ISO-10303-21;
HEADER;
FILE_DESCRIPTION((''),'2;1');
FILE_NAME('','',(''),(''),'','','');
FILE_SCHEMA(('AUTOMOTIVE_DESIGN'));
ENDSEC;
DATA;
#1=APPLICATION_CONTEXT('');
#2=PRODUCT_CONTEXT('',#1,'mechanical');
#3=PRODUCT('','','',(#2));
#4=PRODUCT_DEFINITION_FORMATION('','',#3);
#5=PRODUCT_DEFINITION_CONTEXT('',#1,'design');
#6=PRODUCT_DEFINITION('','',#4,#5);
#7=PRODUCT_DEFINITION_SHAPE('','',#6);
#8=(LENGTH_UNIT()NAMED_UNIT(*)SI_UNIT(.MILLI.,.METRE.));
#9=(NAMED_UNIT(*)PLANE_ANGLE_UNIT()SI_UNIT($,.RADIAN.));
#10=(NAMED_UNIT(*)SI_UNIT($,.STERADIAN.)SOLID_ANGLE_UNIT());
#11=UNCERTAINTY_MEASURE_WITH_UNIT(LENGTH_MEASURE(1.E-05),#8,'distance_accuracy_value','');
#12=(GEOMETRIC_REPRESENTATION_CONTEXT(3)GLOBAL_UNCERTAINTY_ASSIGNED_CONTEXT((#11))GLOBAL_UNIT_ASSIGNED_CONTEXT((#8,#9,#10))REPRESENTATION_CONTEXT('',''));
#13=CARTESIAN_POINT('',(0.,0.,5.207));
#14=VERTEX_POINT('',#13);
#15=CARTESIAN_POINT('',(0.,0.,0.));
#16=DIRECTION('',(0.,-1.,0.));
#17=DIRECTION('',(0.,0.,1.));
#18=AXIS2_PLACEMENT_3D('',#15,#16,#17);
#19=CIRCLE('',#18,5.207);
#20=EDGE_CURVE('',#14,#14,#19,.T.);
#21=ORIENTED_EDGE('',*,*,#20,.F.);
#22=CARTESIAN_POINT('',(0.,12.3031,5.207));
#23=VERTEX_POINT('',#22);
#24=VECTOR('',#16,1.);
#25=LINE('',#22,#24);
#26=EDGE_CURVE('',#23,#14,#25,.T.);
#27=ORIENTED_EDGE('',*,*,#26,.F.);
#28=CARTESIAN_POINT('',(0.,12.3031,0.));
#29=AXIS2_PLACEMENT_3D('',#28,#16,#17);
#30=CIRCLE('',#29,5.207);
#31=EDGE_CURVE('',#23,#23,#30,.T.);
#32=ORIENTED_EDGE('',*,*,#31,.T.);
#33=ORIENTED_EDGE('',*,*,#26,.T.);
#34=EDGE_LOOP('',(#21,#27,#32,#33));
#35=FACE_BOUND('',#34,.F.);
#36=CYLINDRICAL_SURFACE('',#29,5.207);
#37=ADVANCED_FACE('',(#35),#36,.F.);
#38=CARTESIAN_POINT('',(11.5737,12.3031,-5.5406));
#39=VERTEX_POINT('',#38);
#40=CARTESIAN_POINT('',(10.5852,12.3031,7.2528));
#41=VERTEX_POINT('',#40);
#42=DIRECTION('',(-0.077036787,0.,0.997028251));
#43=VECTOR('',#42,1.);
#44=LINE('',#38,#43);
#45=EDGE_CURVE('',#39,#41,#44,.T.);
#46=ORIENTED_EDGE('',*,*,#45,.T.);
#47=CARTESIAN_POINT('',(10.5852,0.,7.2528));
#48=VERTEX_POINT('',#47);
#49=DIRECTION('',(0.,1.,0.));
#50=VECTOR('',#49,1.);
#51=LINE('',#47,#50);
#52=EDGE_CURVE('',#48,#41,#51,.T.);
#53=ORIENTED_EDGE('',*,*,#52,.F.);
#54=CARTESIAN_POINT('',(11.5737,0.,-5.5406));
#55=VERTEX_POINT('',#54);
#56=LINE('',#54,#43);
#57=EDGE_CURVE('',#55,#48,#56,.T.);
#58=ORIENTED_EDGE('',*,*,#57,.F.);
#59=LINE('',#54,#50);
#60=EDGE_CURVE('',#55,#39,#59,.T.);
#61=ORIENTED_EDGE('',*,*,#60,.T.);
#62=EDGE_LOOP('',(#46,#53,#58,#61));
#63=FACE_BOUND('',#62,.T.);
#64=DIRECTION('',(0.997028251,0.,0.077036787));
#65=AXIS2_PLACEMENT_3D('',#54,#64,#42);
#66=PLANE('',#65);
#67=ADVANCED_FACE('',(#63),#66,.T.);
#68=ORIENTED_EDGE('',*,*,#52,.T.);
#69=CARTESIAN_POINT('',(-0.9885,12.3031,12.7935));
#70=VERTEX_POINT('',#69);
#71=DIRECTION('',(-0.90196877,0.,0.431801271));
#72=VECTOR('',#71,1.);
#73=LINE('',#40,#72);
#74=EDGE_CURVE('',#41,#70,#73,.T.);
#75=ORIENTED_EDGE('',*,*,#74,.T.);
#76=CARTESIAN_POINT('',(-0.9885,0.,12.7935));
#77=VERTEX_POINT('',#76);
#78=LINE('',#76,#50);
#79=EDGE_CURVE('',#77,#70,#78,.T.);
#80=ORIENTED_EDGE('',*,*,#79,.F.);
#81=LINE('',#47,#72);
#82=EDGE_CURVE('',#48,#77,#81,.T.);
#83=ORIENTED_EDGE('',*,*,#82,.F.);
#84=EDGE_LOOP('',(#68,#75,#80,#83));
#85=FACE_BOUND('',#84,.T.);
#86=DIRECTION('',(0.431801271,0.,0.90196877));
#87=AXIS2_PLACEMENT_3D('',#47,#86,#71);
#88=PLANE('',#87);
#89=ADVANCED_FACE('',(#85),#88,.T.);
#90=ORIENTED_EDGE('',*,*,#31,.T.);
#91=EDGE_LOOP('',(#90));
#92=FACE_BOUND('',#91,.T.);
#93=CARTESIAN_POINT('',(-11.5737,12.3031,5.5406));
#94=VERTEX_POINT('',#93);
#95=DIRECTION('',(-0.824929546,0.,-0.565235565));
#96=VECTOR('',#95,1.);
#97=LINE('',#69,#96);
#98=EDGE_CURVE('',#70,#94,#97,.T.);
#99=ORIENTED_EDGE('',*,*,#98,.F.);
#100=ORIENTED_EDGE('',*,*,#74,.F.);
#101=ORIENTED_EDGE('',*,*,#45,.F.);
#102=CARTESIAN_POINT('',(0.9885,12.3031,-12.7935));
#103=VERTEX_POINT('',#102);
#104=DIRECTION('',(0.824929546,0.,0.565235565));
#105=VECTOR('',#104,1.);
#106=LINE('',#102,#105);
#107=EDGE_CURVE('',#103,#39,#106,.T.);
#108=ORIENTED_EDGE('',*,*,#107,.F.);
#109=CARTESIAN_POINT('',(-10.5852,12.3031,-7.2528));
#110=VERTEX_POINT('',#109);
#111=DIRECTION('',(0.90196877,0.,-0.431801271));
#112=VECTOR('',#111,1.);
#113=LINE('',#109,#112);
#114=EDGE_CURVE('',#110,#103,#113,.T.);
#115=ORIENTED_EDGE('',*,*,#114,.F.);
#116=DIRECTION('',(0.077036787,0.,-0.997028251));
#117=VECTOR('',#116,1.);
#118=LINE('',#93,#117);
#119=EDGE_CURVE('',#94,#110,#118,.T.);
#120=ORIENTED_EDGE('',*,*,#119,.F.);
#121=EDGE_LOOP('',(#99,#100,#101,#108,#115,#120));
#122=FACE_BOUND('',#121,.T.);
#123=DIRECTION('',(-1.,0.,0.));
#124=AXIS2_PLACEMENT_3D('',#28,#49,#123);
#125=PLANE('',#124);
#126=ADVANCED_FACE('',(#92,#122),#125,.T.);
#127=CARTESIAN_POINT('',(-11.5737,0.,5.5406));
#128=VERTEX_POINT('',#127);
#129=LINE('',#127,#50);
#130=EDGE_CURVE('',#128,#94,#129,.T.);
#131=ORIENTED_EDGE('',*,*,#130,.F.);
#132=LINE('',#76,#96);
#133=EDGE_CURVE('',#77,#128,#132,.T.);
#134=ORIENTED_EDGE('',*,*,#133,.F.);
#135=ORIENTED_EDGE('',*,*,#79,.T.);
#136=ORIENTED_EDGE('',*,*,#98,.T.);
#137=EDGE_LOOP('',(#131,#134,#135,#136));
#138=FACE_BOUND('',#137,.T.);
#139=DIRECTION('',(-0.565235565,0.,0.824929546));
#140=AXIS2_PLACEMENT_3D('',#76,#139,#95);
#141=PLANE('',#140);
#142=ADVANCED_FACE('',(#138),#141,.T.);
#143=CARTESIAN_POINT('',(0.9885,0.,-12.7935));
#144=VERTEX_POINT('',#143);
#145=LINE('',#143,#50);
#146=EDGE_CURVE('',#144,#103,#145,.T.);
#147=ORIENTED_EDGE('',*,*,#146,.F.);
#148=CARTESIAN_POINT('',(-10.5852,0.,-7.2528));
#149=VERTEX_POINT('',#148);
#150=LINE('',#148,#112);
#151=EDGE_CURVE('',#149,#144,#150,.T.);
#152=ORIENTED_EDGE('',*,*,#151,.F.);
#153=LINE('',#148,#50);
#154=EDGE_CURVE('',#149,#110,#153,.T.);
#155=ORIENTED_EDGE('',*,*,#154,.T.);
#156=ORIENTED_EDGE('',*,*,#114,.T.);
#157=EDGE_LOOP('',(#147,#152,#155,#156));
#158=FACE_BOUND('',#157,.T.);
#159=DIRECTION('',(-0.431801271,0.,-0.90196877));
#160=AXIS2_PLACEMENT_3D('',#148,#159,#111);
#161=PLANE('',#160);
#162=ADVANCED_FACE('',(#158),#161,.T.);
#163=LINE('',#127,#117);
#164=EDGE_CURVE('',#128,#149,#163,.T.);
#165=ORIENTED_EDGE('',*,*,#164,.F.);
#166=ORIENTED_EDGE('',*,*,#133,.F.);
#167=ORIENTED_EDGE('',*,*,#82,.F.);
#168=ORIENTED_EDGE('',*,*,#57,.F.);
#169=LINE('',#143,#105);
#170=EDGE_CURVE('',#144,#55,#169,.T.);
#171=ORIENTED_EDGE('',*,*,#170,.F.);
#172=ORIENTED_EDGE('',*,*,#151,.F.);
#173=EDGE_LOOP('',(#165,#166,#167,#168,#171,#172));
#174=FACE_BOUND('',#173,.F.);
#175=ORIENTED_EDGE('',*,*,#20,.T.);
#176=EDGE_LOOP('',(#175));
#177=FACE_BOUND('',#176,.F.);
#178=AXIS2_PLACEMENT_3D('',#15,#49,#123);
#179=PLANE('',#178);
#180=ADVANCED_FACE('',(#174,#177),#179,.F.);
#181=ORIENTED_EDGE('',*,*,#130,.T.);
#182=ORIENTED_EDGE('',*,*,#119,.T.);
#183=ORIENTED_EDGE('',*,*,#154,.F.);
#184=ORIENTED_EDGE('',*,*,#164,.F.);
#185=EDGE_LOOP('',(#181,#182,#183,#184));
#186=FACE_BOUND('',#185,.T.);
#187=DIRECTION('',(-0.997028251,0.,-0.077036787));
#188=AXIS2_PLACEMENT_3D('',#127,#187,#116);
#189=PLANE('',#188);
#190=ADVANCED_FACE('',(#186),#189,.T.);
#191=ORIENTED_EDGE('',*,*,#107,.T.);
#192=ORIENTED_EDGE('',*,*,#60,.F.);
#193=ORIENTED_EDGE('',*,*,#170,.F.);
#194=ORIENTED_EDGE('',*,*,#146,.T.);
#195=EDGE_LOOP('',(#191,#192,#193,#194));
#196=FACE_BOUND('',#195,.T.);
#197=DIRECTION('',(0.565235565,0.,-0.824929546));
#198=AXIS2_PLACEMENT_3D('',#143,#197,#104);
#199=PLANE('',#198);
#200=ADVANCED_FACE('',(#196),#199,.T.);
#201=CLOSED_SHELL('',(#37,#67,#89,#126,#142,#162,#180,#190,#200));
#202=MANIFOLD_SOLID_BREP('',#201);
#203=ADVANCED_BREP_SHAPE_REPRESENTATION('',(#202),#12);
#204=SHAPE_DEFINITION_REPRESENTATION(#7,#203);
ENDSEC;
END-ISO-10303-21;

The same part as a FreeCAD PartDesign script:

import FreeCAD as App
import Part
import Sketcher
Q = App.Units.Quantity


def add_polygon(sketch, points):
    """Adds a closed chain of lines whose ends are joined by coincident constraints."""
    first, n = sketch.GeometryCount, len(points)
    for a, b in zip(points, points[1:] + points[:1]):
        sketch.addGeometry(Part.LineSegment(App.Vector(*a, 0), App.Vector(*b, 0)), False)
    for i in range(n):
        sketch.addConstraint(Sketcher.Constraint("Coincident", first + i, 2, first + (i + 1) % n, 1))

doc = App.newDocument("Part")
body = doc.addObject("PartDesign::Body", "Body")

sketch1 = doc.addObject("Sketcher::SketchObject", "Sketch")
body.addObject(sketch1)
sketch1.AttachmentSupport = (doc.XZ_Plane, [""])
sketch1.MapMode = "FlatFace"
add_polygon(sketch1, [(1, -13), (-11, -7), (-12, 6), (-1, 13), (11, 7), (12, -6)])
sketch1.addConstraint(Sketcher.Constraint("Symmetric", 0, 2, 3, 2, -1, 1))
sketch1.addConstraint(Sketcher.Constraint("Symmetric", 1, 2, 4, 2, -1, 1))
sketch1.addConstraint(Sketcher.Constraint("Symmetric", 2, 2, 5, 2, -1, 1))
sketch1.addConstraint(Sketcher.Constraint("Equal", 0, 1))
sketch1.addConstraint(Sketcher.Constraint("Equal", 1, 2))
sketch1.addConstraint(Sketcher.Constraint("DistanceX", 1, 2, 3, 2, Q("0.8724 in")))
sketch1.addConstraint(Sketcher.Constraint("DistanceY", 1, 2, 3, 2, Q("0.0674 in")))
sketch1.addConstraint(Sketcher.Constraint("Distance", 0, Q("12.8316 mm")))
sketch1.addConstraint(Sketcher.Constraint("DistanceX", 0, 2, -1, 1, Q("10.5852 mm")))
pad1 = doc.addObject("PartDesign::Pad", "Pad")
body.addObject(pad1)
pad1.Profile = sketch1
pad1.Length = Q("0.484374 in")
pad1.Reversed = True

sketch2 = doc.addObject("Sketcher::SketchObject", "Sketch001")
body.addObject(sketch2)
sketch2.AttachmentSupport = (doc.XZ_Plane, [""])
sketch2.MapMode = "FlatFace"
sketch2.AttachmentOffset = App.Placement(App.Vector(0, 0, -0.484374 * 25.4), App.Rotation())
sketch2.addGeometry(Part.Circle(App.Vector(0, 0, 0), App.Vector(0, 0, 1), 5), False)
sketch2.addConstraint(Sketcher.Constraint("Coincident", 0, 3, -1, 1))
sketch2.addConstraint(Sketcher.Constraint("Diameter", 0, Q("0.41 in")))
doc.recompute()
hole = doc.addObject("PartDesign::Hole", "Hole")
body.addObject(hole)
hole.Profile = sketch2
hole.ThreadType = "None"
hole.Diameter = Q("0.41 in")
hole.DepthType = "ThroughAll"
hole.Reversed = True

doc.recompute()
